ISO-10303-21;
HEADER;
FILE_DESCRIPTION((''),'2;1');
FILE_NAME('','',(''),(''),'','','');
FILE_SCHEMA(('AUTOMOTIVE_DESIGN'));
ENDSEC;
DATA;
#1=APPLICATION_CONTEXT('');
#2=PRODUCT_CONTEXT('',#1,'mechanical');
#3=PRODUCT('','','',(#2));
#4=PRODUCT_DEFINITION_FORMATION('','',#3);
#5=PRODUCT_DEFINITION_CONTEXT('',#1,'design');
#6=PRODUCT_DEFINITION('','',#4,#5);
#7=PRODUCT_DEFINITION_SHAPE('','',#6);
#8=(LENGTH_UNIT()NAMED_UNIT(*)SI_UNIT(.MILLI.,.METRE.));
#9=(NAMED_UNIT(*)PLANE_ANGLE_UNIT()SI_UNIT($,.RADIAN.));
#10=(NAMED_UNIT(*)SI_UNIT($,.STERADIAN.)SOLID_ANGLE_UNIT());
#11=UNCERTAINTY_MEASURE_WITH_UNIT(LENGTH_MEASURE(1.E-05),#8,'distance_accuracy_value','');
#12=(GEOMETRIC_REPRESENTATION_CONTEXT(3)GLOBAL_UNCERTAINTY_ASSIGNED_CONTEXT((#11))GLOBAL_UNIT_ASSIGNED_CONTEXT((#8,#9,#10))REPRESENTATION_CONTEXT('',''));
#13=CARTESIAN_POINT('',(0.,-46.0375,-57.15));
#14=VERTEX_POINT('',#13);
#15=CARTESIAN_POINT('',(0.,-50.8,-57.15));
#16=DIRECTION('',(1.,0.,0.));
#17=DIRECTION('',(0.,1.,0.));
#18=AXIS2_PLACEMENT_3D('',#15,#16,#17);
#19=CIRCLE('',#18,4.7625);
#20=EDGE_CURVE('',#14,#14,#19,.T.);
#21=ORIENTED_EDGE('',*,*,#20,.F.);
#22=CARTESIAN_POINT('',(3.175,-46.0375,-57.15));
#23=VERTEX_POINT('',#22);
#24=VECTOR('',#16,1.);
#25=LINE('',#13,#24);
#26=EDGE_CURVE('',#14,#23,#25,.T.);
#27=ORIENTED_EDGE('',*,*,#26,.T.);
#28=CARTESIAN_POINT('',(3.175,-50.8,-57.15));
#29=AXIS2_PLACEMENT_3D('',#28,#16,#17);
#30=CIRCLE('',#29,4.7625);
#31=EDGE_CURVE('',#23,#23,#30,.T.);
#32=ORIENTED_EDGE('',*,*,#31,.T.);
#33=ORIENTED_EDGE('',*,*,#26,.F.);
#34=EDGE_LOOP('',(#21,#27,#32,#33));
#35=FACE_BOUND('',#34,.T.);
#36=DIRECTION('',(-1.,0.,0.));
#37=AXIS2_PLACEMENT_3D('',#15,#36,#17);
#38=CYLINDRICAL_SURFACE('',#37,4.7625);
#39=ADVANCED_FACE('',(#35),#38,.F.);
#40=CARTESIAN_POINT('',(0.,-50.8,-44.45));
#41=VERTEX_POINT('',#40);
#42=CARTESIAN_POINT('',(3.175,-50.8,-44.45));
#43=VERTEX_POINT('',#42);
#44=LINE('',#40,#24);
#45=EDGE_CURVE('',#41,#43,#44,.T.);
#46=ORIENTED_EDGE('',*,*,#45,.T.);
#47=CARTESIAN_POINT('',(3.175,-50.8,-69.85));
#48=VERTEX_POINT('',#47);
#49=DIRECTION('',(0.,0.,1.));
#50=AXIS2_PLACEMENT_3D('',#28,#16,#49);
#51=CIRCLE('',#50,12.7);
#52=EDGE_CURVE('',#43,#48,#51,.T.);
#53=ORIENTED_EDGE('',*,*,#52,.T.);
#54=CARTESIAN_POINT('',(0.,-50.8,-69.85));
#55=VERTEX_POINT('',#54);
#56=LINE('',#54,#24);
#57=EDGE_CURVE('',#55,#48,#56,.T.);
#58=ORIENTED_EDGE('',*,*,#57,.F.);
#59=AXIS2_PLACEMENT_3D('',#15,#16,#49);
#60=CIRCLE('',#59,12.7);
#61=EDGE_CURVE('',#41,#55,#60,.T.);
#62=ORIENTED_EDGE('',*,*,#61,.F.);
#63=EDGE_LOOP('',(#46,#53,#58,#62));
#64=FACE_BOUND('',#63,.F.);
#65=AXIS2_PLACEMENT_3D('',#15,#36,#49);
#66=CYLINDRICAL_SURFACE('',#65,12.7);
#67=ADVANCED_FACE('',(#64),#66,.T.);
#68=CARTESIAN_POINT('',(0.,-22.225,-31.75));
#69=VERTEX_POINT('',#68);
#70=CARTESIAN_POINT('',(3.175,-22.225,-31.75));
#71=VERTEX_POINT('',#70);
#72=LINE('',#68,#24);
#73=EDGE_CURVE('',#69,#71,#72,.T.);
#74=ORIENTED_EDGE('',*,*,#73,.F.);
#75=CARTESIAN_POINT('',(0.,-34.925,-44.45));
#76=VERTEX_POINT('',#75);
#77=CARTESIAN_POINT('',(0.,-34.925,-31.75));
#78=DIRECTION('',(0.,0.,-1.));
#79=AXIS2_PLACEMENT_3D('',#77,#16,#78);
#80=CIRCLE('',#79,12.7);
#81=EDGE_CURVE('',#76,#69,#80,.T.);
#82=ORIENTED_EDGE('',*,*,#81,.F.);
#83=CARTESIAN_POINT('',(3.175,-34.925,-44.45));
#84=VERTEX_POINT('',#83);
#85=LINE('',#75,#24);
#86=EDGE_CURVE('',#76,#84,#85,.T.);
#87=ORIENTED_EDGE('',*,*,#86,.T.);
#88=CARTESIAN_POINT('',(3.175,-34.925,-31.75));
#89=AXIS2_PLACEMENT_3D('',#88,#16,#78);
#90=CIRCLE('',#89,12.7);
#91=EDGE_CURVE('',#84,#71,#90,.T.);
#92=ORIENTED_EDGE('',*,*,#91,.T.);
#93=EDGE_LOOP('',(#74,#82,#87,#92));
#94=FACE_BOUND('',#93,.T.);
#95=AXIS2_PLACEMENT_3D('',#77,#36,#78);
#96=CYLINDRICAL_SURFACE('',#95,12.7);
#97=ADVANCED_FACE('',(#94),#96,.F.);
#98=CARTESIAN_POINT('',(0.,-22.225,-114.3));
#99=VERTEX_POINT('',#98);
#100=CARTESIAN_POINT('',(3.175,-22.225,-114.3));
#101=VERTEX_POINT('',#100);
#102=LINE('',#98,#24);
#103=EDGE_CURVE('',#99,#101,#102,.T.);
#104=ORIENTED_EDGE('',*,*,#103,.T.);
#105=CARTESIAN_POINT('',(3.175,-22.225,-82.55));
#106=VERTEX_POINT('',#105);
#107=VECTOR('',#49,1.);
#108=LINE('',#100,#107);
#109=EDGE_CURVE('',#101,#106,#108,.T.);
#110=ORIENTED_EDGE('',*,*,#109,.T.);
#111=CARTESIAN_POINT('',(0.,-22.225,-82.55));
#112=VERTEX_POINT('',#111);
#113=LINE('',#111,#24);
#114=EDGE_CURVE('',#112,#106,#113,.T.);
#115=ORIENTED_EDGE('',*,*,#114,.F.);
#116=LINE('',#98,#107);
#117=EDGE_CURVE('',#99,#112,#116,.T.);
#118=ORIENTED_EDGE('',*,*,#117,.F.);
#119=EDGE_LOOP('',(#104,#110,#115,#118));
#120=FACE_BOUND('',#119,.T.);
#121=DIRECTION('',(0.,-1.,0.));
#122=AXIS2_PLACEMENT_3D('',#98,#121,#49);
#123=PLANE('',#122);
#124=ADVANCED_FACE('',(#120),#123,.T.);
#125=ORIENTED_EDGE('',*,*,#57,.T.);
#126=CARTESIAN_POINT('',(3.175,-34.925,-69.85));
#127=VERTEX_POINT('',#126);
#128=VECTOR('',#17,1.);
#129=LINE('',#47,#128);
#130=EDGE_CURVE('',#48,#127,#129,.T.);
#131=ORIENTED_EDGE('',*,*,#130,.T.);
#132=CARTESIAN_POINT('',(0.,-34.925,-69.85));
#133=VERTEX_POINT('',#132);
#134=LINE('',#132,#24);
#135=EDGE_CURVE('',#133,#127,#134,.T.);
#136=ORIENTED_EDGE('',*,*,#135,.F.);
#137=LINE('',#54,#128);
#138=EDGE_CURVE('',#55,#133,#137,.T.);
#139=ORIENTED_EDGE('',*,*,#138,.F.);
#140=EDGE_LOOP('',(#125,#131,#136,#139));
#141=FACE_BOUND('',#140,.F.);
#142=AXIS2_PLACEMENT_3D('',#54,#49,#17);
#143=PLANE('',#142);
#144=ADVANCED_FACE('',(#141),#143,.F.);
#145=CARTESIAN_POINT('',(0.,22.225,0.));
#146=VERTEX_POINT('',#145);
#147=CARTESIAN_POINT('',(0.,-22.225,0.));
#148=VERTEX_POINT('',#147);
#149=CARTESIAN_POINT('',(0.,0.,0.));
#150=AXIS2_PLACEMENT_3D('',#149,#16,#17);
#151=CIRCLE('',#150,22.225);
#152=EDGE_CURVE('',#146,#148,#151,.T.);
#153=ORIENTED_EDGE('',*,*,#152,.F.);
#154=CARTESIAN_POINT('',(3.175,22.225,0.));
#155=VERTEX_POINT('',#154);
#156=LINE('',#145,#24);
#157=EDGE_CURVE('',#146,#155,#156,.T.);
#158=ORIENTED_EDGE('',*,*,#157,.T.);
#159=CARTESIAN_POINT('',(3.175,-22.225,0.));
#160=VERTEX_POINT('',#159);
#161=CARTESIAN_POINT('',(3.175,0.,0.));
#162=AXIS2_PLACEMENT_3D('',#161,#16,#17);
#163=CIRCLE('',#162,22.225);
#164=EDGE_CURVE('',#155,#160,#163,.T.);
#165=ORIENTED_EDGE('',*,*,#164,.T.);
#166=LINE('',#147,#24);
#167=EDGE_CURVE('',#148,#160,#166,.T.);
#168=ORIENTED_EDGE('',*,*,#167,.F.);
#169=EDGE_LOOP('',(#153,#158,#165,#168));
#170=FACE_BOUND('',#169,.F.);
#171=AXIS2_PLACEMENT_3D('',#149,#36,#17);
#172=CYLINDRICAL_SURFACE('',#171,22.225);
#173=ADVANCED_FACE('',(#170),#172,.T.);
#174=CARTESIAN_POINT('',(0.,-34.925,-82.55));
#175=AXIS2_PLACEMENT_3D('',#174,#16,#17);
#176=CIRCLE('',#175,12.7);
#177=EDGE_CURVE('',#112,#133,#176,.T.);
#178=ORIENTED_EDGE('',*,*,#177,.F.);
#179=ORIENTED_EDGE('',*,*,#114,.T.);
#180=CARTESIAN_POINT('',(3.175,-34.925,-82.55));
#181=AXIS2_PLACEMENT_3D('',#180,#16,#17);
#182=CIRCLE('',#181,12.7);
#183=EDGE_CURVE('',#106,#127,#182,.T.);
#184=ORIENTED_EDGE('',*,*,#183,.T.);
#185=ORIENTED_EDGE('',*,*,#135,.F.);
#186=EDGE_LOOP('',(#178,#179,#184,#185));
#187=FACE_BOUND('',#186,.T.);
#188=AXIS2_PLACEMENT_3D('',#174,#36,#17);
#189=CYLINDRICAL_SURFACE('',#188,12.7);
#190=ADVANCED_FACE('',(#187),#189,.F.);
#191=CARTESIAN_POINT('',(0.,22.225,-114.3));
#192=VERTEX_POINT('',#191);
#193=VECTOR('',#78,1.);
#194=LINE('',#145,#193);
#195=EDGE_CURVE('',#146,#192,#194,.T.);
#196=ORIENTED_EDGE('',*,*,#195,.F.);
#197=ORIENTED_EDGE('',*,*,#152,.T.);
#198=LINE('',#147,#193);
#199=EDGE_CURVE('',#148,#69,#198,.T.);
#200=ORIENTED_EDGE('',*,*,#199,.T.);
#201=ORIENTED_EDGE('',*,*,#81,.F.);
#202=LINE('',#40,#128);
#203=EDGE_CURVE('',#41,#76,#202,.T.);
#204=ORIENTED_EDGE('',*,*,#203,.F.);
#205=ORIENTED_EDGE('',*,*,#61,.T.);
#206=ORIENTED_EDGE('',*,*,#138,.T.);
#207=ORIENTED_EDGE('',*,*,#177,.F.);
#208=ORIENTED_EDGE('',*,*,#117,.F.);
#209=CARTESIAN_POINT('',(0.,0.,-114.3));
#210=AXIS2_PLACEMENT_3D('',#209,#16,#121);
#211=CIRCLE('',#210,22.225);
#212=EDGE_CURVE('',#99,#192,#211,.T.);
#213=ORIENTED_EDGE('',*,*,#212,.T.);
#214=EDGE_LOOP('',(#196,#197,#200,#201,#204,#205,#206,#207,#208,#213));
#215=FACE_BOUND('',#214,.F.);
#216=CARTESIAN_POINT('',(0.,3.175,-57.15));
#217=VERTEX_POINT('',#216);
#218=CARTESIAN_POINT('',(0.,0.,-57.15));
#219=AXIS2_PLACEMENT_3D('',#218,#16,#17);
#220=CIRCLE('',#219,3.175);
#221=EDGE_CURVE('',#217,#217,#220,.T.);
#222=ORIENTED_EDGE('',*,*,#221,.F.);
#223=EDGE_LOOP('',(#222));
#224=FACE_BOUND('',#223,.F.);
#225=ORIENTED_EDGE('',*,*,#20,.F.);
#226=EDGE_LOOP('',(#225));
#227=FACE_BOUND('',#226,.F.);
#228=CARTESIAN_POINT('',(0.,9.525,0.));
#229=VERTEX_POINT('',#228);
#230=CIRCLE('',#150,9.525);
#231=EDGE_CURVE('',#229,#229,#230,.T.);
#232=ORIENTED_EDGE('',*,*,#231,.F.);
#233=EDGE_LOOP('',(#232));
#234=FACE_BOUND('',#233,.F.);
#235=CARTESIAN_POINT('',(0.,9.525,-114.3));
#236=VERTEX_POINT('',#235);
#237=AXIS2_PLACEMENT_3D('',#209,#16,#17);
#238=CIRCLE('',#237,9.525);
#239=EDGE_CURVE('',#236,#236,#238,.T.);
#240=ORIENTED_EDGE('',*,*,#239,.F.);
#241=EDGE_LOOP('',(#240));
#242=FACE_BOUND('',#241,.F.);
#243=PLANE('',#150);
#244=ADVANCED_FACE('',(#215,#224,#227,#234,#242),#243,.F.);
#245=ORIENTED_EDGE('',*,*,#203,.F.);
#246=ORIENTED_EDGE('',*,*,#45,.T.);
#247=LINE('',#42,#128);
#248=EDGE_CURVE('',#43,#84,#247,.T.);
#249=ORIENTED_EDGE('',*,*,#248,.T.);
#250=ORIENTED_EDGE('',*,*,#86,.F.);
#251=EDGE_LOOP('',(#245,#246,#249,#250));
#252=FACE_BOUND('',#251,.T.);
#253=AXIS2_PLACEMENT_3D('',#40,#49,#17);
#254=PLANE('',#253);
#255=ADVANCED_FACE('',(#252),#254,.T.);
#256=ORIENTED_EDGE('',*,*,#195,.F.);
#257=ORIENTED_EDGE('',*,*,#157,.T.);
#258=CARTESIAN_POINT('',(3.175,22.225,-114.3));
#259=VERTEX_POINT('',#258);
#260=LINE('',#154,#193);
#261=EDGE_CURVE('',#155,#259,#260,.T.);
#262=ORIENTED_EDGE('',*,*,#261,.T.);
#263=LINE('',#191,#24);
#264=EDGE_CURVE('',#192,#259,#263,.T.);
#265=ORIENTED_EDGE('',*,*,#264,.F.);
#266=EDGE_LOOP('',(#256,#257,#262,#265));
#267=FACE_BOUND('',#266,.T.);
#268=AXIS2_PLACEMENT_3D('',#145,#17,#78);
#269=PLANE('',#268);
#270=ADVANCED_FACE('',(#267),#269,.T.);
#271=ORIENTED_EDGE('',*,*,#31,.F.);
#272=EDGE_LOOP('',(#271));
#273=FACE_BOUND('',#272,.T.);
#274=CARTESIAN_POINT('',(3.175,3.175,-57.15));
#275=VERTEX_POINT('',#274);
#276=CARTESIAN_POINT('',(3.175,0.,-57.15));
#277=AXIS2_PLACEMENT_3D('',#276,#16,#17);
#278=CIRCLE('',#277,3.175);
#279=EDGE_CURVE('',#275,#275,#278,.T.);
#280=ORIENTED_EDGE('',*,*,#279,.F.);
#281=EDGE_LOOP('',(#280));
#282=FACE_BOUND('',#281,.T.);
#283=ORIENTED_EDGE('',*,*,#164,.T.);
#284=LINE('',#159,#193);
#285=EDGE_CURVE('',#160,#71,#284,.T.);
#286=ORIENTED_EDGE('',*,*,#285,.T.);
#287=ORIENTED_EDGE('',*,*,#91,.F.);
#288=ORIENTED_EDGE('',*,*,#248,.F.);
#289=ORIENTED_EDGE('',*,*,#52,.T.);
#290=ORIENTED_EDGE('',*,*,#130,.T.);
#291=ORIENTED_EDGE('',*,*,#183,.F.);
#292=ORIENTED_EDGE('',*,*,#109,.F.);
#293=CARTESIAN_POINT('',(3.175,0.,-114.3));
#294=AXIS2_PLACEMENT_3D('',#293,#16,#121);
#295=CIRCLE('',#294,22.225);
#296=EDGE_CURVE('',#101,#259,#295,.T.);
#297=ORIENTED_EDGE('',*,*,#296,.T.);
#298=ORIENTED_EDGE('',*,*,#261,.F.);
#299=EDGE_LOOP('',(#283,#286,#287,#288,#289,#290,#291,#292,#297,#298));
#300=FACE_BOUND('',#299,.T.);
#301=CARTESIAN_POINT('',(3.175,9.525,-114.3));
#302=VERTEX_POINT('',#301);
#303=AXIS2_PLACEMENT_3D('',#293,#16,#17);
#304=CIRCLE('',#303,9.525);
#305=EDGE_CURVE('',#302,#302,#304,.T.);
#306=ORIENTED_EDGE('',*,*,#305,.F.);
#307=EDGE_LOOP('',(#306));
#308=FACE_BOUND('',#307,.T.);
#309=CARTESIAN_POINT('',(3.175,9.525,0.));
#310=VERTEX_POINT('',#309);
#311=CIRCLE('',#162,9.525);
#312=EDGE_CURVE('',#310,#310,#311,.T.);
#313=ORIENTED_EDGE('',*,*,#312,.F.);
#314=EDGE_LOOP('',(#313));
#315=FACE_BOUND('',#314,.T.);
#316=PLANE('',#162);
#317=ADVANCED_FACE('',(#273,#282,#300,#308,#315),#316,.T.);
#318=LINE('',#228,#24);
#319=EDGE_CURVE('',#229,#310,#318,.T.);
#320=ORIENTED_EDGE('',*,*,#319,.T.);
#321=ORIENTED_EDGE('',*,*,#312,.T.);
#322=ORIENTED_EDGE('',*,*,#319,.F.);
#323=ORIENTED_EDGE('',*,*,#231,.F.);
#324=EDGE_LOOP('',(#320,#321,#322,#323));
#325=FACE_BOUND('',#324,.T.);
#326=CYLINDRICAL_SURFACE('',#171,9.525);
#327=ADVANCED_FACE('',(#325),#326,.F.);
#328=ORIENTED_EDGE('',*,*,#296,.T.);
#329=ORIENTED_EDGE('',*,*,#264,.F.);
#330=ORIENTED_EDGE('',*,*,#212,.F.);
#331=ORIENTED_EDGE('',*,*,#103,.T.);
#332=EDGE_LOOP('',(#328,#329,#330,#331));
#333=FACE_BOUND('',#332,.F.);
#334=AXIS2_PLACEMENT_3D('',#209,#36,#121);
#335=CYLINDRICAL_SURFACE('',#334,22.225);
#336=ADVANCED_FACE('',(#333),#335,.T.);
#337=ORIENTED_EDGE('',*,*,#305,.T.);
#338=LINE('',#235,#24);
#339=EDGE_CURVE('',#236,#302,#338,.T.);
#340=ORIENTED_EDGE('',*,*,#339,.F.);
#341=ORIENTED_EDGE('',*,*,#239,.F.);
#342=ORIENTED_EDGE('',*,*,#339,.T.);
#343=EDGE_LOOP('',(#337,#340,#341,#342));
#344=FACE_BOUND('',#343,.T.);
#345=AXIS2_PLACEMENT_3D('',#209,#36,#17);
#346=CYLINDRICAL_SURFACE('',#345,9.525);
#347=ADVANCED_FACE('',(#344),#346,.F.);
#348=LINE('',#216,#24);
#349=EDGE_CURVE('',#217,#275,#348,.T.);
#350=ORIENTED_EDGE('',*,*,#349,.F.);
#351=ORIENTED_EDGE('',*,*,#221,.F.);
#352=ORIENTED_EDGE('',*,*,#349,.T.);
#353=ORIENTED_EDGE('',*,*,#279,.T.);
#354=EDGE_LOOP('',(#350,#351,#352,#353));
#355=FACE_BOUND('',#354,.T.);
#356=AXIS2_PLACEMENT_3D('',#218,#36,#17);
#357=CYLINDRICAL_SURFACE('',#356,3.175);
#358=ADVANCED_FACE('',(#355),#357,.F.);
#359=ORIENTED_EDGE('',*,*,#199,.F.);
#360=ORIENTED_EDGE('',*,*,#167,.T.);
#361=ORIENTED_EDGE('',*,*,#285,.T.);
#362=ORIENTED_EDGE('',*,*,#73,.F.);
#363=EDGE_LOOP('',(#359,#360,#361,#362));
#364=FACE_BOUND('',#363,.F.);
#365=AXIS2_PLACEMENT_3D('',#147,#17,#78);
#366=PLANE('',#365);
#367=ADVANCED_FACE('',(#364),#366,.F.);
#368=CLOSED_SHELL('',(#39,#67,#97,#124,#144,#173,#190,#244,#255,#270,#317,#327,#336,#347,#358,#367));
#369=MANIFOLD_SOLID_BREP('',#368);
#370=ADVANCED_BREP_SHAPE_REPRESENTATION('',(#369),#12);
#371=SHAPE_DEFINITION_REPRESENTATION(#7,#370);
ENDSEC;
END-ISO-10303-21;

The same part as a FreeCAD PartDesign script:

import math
import FreeCAD as App
import Part
import Sketcher
from FreeCAD import Vector
Q = App.Units.Quantity

doc = App.newDocument("Part")
body = doc.addObject("PartDesign::Body", "Body")

# Sketch on YZ plane
sketch1 = body.newObject("Sketcher::SketchObject", "Sketch")
sketch1.AttachmentSupport = (doc.getObject("YZ_Plane"), [""])
sketch1.MapMode = "FlatFace"
sketch1.addGeometry([
    Part.LineSegment(Vector(22.2, -114.3, 0), Vector(22.2, 0, 0)),  # 0
    Part.ArcOfCircle(Part.Circle(Vector(0, 0, 0), Vector(0, 0, 1), 22.2), math.radians(0), math.radians(180)),  # 1
    Part.LineSegment(Vector(-22.2, 0, 0), Vector(-22.2, -31.8, 0)),  # 2
    Part.ArcOfCircle(Part.Circle(Vector(-34.9, -31.8, 0), Vector(0, 0, 1), 12.7), math.radians(-90), math.radians(0)),  # 3
    Part.LineSegment(Vector(-34.9, -44.5, 0), Vector(-50.8, -44.5, 0)),  # 4
    Part.ArcOfCircle(Part.Circle(Vector(-50.8, -57.1, 0), Vector(0, 0, 1), 12.7), math.radians(90), math.radians(270)),  # 5
    Part.LineSegment(Vector(-50.8, -69.8, 0), Vector(-34.9, -69.8, 0)),  # 6
    Part.ArcOfCircle(Part.Circle(Vector(-34.9, -82.5, 0), Vector(0, 0, 1), 12.7), math.radians(0), math.radians(90)),  # 7
    Part.LineSegment(Vector(-22.2, -82.5, 0), Vector(-22.2, -114.3, 0)),  # 8
    Part.ArcOfCircle(Part.Circle(Vector(0, -114.3, 0), Vector(0, 0, 1), 22.2), math.radians(180), math.radians(360)),  # 9
    Part.Circle(Vector(0, -114.3, 0), Vector(0, 0, 1), 9.5),  # 10
    Part.Circle(Vector(-50.8, -57.1, 0), Vector(0, 0, 1), 4.8),  # 11
    Part.Circle(Vector(0, -57.1, 0), Vector(0, 0, 1), 3.2),  # 12
    Part.Circle(Vector(0, 0, 0), Vector(0, 0, 1), 9.5),  # 13
], False)
sketch1.addConstraint([
    Sketcher.Constraint("Tangent", 0, 2, 1, 1),
    Sketcher.Constraint("Tangent", 1, 2, 2, 1),
    Sketcher.Constraint("Tangent", 2, 2, 3, 2),
    Sketcher.Constraint("Tangent", 3, 1, 4, 1),
    Sketcher.Constraint("Tangent", 4, 2, 5, 1),
    Sketcher.Constraint("Tangent", 5, 2, 6, 1),
    Sketcher.Constraint("Tangent", 6, 2, 7, 2),
    Sketcher.Constraint("Tangent", 7, 1, 8, 1),
    Sketcher.Constraint("Tangent", 8, 2, 9, 1),
    Sketcher.Constraint("Tangent", 9, 2, 0, 1),
    Sketcher.Constraint("Vertical", 0),
    Sketcher.Constraint("Vertical", 2),
    Sketcher.Constraint("Horizontal", 4),
    Sketcher.Constraint("Horizontal", 6),
    Sketcher.Constraint("Vertical", 8),
    Sketcher.Constraint("Coincident", 1, 3, -1, 1),
    Sketcher.Constraint("Coincident", 13, 3, -1, 1),
    Sketcher.Constraint("Coincident", 10, 3, 9, 3),
    Sketcher.Constraint("Coincident", 11, 3, 5, 3),
    Sketcher.Constraint("Equal", 3, 5),
    Sketcher.Constraint("Equal", 5, 7),
    Sketcher.Constraint("Equal", 1, 9),
    Sketcher.Constraint("Equal", 10, 13),
    Sketcher.Constraint("PointOnObject", 12, 3, -2),
    Sketcher.Constraint("Horizontal", 11, 3, 12, 3),
    Sketcher.Constraint("Equal", 2, 8),
    Sketcher.Constraint("Radius", 3, Q("0.5 in")),
    Sketcher.Constraint("Diameter", 10, Q("0.75 in")),
    Sketcher.Constraint("Diameter", 12, Q("0.25 in")),
    Sketcher.Constraint("Diameter", 11, Q("0.375 in")),
    Sketcher.Constraint("DistanceY", 0, 1, 0, 2, Q("4.5 in")),
    Sketcher.Constraint("DistanceX", 5, 3, -1, 1, Q("2 in")),
    Sketcher.Constraint("Radius", 1, Q("0.875 in")),
])
pad1 = body.newObject("PartDesign::Pad", "Pad")
pad1.Profile = sketch1
pad1.Length = Q("0.125 in")

doc.recompute()
